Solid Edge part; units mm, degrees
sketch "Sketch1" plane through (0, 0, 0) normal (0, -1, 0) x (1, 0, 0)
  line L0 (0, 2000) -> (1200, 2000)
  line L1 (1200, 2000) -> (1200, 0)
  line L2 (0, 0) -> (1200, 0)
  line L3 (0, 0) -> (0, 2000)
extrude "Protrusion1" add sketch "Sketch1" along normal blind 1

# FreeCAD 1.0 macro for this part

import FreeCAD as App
import Part
import Sketcher

V = App.Vector
Q = App.Units.Quantity


def add_polygon(sketch, points):
    """Adds a closed chain of lines whose ends are joined by coincident constraints."""
    first, n = sketch.GeometryCount, len(points)
    for a, b in zip(points, points[1:] + points[:1]):
        sketch.addGeometry(Part.LineSegment(App.Vector(*a, 0), App.Vector(*b, 0)), False)
    for i in range(n):
        sketch.addConstraint(Sketcher.Constraint("Coincident", first + i, 2, first + (i + 1) % n, 1))

doc = App.newDocument("Part")
body = doc.addObject("PartDesign::Body", "Body")

# Sketch on XZ plane
sketch1 = body.newObject("Sketcher::SketchObject", "Sketch")
sketch1.AttachmentSupport = (doc.getObject("XZ_Plane"), [""])
sketch1.MapMode = "FlatFace"
add_polygon(sketch1, [(1200, 2000), (0, 2000), (0, 0), (1200, 0)])  # lines 0-3
sketch1.addConstraint([
    Sketcher.Constraint("Horizontal", 0),
    Sketcher.Constraint("Vertical", 1),
    Sketcher.Constraint("Horizontal", 2),
    Sketcher.Constraint("Vertical", 3),
    Sketcher.Constraint("Coincident", 1, 2, -1, 1),
    Sketcher.Constraint("DistanceX", 0, 2, 0, 1, Q("1200 mm")),
    Sketcher.Constraint("DistanceY", 1, 2, 1, 1, Q("2000 mm")),
])
pad1 = body.newObject("PartDesign::Pad", "Pad")
pad1.Profile = sketch1
pad1.Length = 1

doc.recompute()
